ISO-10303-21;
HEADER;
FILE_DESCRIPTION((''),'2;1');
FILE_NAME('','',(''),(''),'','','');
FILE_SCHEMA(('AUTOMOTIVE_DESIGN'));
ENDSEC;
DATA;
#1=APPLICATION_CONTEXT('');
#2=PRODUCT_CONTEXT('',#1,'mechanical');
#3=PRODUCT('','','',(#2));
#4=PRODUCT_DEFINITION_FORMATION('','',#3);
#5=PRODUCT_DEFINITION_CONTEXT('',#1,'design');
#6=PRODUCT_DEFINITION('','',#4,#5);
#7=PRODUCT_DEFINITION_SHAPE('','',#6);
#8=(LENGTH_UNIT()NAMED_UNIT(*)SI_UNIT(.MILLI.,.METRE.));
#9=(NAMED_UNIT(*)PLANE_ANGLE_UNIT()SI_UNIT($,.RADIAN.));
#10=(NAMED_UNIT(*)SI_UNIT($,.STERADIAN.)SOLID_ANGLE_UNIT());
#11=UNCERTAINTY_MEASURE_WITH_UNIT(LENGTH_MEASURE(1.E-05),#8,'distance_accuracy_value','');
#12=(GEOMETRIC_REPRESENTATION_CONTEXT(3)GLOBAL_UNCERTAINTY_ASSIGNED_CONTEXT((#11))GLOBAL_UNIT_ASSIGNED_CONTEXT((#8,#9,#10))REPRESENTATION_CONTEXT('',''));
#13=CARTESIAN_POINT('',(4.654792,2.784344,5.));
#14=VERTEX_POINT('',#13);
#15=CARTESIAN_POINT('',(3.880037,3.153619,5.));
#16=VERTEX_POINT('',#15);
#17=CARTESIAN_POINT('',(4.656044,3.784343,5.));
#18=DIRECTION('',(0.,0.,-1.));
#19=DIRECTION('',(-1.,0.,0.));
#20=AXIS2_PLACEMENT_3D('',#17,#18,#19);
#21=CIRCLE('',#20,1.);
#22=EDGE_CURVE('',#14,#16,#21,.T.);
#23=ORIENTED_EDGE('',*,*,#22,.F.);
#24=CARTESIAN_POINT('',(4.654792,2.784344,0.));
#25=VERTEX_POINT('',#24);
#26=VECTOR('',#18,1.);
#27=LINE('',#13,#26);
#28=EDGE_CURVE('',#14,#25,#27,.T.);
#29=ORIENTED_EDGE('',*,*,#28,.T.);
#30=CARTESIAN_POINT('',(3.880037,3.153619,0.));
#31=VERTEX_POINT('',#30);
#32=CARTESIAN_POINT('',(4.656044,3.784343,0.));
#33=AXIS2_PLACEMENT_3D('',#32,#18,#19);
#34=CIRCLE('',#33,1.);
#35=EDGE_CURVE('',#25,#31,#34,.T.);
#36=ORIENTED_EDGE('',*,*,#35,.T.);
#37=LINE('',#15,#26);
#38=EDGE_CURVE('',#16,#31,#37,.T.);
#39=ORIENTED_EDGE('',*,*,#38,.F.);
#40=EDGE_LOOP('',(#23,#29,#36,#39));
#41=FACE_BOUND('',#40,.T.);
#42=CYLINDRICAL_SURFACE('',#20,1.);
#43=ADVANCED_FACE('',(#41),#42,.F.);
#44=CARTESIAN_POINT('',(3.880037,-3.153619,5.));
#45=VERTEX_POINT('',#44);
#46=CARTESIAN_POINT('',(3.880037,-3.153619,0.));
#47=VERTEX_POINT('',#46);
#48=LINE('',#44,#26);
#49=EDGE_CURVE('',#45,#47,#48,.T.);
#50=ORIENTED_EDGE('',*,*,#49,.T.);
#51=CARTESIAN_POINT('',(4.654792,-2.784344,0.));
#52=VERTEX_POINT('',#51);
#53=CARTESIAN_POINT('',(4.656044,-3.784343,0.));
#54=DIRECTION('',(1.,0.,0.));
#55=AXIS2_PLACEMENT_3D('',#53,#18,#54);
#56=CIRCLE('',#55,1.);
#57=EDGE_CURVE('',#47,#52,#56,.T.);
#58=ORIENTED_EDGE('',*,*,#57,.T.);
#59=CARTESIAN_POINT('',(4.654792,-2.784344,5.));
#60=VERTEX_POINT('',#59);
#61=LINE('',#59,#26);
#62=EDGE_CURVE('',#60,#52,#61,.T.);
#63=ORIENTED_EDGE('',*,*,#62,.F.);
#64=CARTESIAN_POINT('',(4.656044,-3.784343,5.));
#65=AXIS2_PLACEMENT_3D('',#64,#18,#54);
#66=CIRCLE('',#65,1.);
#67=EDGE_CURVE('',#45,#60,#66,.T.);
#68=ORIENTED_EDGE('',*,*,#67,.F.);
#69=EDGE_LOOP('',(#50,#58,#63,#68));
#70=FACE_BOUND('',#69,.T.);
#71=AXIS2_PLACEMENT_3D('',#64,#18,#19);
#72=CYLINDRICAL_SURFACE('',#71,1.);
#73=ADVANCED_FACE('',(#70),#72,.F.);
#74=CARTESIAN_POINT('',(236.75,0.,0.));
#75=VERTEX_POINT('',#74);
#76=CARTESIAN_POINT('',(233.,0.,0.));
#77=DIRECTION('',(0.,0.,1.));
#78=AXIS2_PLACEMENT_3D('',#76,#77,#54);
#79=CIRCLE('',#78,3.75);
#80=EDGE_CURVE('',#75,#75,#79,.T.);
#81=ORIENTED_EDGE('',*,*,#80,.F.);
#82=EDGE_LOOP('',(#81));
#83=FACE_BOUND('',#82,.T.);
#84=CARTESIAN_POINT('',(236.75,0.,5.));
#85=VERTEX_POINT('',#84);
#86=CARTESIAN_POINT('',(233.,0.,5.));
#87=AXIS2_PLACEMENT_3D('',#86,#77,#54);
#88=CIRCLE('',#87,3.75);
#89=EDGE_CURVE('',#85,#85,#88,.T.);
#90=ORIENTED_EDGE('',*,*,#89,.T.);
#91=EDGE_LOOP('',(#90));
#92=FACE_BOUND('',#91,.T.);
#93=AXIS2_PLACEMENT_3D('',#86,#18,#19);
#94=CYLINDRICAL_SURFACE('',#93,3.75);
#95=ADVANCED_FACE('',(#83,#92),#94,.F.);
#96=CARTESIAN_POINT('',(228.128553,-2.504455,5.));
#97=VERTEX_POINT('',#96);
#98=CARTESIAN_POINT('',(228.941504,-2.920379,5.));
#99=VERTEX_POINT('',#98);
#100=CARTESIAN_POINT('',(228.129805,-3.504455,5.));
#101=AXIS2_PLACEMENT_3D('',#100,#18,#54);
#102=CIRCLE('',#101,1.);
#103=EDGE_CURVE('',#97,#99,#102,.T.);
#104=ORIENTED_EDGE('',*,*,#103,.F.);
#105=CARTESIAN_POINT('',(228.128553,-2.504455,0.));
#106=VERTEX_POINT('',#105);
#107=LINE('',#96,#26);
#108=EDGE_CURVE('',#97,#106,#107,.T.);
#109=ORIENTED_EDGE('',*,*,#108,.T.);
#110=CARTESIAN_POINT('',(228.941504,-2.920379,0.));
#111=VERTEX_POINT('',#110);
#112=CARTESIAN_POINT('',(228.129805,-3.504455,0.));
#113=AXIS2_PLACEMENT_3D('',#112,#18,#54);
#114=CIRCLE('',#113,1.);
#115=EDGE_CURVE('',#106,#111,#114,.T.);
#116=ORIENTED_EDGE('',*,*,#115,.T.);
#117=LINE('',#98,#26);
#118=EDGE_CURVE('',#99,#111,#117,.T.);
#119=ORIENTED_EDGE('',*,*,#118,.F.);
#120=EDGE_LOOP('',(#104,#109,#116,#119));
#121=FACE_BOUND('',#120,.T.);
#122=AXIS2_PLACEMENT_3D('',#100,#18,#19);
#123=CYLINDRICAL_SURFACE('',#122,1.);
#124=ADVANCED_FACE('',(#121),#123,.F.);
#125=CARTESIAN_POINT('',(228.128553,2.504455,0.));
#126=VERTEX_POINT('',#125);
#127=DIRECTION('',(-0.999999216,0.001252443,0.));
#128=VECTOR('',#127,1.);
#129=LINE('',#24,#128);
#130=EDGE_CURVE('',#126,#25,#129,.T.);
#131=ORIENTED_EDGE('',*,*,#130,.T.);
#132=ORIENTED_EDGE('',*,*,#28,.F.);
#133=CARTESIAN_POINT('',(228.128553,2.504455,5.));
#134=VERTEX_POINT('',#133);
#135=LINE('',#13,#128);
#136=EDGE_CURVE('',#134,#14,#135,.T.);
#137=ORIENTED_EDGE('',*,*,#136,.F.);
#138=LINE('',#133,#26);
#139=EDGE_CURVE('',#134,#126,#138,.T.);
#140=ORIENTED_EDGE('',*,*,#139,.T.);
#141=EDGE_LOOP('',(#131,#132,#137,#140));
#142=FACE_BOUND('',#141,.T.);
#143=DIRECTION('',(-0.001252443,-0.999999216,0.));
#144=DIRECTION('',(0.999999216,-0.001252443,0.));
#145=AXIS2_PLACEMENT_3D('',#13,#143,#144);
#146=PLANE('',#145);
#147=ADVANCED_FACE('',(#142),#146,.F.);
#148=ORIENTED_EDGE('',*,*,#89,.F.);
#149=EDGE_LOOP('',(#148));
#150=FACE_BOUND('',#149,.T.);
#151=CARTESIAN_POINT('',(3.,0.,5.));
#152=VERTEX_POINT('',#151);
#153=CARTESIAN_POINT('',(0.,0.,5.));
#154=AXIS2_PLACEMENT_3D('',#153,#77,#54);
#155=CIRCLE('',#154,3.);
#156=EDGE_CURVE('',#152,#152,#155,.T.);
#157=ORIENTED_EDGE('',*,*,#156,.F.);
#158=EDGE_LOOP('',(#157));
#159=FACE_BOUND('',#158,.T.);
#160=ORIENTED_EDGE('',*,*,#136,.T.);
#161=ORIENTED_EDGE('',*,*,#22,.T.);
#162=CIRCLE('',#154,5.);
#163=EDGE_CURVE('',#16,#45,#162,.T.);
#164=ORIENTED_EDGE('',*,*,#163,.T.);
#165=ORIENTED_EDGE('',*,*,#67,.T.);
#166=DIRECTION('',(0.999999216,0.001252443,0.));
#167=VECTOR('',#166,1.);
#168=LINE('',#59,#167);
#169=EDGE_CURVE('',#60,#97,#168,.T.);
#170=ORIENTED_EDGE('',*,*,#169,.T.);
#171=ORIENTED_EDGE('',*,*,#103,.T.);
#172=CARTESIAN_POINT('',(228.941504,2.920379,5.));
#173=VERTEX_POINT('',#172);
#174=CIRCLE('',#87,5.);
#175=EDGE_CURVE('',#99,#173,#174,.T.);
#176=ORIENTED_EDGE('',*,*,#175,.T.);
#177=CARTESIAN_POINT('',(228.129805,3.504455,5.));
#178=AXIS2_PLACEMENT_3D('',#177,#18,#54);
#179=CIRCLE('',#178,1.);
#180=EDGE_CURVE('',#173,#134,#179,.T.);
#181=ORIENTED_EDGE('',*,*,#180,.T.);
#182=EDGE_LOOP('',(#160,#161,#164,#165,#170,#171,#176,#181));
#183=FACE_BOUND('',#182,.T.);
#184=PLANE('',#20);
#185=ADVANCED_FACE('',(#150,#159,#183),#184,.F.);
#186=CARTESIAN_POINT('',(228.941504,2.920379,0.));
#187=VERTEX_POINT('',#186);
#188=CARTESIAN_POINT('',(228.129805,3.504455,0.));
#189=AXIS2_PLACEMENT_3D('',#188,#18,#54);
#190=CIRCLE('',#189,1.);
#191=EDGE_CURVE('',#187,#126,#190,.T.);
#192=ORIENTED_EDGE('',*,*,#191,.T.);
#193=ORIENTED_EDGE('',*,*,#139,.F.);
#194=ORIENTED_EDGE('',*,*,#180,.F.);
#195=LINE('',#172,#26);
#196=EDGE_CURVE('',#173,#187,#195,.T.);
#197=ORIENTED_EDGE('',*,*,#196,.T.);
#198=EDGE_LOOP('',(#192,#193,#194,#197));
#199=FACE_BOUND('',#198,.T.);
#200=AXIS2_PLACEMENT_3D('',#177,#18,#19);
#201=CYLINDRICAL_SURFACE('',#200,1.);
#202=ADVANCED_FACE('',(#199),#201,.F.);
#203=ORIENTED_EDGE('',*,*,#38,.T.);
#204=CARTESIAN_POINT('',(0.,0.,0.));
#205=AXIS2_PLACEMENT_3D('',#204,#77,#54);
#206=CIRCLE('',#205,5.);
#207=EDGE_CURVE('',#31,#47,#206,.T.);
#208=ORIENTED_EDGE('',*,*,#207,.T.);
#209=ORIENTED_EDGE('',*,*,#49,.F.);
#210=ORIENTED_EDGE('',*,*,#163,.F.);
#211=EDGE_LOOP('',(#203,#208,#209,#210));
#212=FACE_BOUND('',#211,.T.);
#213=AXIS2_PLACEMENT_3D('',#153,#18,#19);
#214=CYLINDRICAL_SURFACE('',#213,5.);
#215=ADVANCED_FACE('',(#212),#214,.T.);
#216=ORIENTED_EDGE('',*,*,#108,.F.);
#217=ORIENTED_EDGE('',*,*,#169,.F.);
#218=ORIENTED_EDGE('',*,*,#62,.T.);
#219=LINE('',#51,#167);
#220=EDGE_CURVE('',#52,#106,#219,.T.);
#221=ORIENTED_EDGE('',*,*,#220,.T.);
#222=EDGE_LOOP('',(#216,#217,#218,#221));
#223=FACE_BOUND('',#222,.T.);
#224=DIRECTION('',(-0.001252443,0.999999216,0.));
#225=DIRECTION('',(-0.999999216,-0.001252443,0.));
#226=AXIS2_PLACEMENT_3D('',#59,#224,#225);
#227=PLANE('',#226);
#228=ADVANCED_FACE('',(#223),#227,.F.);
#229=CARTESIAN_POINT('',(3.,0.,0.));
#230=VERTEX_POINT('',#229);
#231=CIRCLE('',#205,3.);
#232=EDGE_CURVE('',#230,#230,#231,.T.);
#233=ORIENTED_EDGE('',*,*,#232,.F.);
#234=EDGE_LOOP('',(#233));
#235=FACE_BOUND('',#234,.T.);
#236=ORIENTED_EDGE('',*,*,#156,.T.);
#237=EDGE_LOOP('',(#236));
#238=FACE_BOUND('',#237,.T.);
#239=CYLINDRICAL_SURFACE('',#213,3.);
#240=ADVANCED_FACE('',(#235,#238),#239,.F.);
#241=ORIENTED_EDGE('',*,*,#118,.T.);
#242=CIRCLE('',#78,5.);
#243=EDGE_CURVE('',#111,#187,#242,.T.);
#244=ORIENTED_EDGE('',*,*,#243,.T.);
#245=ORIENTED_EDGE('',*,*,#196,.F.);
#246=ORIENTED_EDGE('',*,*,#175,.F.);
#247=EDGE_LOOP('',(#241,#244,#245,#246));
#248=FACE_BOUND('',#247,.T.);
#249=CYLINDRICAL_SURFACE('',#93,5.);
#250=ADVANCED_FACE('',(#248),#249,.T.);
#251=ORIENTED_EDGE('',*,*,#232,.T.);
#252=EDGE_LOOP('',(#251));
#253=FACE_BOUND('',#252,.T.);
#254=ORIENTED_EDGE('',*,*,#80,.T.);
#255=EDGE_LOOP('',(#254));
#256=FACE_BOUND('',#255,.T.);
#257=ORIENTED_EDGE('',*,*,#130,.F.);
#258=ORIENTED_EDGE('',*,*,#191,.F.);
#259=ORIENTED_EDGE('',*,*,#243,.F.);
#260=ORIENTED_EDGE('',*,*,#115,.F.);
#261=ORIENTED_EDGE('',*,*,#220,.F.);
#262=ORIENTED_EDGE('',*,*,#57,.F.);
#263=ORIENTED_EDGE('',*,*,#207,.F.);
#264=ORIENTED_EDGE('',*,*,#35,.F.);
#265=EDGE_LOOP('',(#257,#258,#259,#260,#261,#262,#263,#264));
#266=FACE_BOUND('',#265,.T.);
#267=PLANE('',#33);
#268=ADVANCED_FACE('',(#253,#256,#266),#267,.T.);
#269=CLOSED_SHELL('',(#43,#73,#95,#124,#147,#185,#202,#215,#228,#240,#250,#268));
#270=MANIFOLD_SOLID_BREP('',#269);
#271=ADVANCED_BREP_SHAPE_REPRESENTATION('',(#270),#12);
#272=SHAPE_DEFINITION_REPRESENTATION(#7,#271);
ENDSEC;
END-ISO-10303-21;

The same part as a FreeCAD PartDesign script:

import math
import FreeCAD as App
import Part
import Sketcher
from FreeCAD import Vector
Q = App.Units.Quantity

doc = App.newDocument("Part")
body = doc.addObject("PartDesign::Body", "Body")

# Sketch on XY plane
sketch1 = doc.addObject("Sketcher::SketchObject", "Sketch")
body.addObject(sketch1)
sketch1.AttachmentSupport = (doc.XY_Plane, [""])
sketch1.MapMode = "FlatFace"
sketch1.addGeometry([
    Part.LineSegment(Vector(4.7, -2.8, 0), Vector(228.1, -2.5, 0)),  # 0
    Part.ArcOfCircle(Part.Circle(Vector(228.1, -3.5, 0), Vector(0, 0, 1), 1), math.radians(36), math.radians(90)),  # 1
    Part.ArcOfCircle(Part.Circle(Vector(233, 0, 0), Vector(0, 0, 1), 5), math.radians(-144), math.radians(144)),  # 2
    Part.ArcOfCircle(Part.Circle(Vector(228.1, 3.5, 0), Vector(0, 0, 1), 1), math.radians(-90), math.radians(-36)),  # 3
    Part.LineSegment(Vector(228.1, 2.5, 0), Vector(4.7, 2.8, 0)),  # 4
    Part.ArcOfCircle(Part.Circle(Vector(4.7, 3.8, 0), Vector(0, 0, 1), 1), math.radians(-141), math.radians(-90)),  # 5
    Part.ArcOfCircle(Part.Circle(Vector(0, 0, 0), Vector(0, 0, 1), 5), math.radians(39), math.radians(321)),  # 6
    Part.ArcOfCircle(Part.Circle(Vector(4.7, -3.8, 0), Vector(0, 0, 1), 1), math.radians(90), math.radians(141)),  # 7
    Part.Circle(Vector(0, 0, 0), Vector(0, 0, 1), 3),  # 8
    Part.Circle(Vector(233, 0, 0), Vector(0, 0, 1), 3.8),  # 9
], False)
sketch1.addConstraint([
    Sketcher.Constraint("Tangent", 0, 2, 1, 2),
    Sketcher.Constraint("Tangent", 1, 1, 2, 1),
    Sketcher.Constraint("Tangent", 2, 2, 3, 2),
    Sketcher.Constraint("Tangent", 3, 1, 4, 1),
    Sketcher.Constraint("Tangent", 4, 2, 5, 2),
    Sketcher.Constraint("Tangent", 5, 1, 6, 1),
    Sketcher.Constraint("Tangent", 6, 2, 7, 2),
    Sketcher.Constraint("Tangent", 7, 1, 0, 1),
    Sketcher.Constraint("Coincident", 6, 3, -1, 1),
    Sketcher.Constraint("Coincident", 8, 3, -1, 1),
    Sketcher.Constraint("Coincident", 9, 3, 2, 3),
    Sketcher.Constraint("Equal", 1, 3),
    Sketcher.Constraint("Equal", 3, 5),
    Sketcher.Constraint("Equal", 2, 6),
    Sketcher.Constraint("Equal", 5, 7),
    Sketcher.Constraint("Symmetric", 1, 3, 3, 3, -1),
    Sketcher.Constraint("Vertical", 5, 3, 7, 3),
    Sketcher.Constraint("Diameter", 8, Q("6 mm")),
    Sketcher.Constraint("Radius", 1, Q("1 mm")),
    Sketcher.Constraint("Radius", 2, Q("5 mm")),
    Sketcher.Constraint("Diameter", 9, Q("7.5 mm")),
    Sketcher.Constraint("DistanceX", -1, 1, 2, 3, Q("233 mm")),
    Sketcher.Constraint("DistanceX", 1, 3, 1, 1, Q("0.811699 mm")),
    Sketcher.Constraint("DistanceX", -1, 1, 4, 2, Q("4.654792 mm")),
])
pad1 = doc.addObject("PartDesign::Pad", "Pad")
body.addObject(pad1)
pad1.Profile = sketch1
pad1.Length = 5

doc.recompute()
